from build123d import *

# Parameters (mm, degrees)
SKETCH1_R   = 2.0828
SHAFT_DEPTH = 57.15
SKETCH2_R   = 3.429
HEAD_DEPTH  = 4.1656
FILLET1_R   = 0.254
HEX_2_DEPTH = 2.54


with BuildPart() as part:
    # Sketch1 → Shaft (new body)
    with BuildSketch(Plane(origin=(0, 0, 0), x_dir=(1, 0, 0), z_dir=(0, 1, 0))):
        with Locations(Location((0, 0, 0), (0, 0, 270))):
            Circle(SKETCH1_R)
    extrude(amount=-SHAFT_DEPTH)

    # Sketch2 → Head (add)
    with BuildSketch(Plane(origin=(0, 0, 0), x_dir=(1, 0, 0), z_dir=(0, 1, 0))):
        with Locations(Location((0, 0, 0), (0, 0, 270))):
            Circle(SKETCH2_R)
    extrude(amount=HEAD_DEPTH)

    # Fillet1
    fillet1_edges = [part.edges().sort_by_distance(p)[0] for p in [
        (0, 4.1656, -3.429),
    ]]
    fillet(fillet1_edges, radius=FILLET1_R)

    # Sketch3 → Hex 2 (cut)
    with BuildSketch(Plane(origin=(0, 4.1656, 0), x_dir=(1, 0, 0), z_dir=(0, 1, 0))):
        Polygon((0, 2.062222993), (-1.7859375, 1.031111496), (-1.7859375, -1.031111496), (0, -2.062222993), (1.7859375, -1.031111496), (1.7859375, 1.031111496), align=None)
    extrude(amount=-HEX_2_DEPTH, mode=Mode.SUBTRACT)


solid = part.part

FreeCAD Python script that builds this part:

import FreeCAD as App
import Part
import Sketcher
Q = App.Units.Quantity


def edges_at(feature, points):
    """Names of the edges that pass closest to the given points."""
    edges = feature.Shape.Edges
    near = lambda p: min(range(len(edges)), key=lambda i: edges[i].distToShape(Part.Vertex(*p))[0])
    return sorted({f"Edge{near(p) + 1}" for p in points})


def add_polygon(sketch, points):
    """Adds a closed chain of lines whose ends are joined by coincident constraints."""
    first, n = sketch.GeometryCount, len(points)
    for a, b in zip(points, points[1:] + points[:1]):
        sketch.addGeometry(Part.LineSegment(App.Vector(*a, 0), App.Vector(*b, 0)), False)
    for i in range(n):
        sketch.addConstraint(Sketcher.Constraint("Coincident", first + i, 2, first + (i + 1) % n, 1))

doc = App.newDocument("Part")
body = doc.addObject("PartDesign::Body", "Body")

sketch1 = doc.addObject("Sketcher::SketchObject", "Sketch")
body.addObject(sketch1)
sketch1.AttachmentSupport = (doc.XZ_Plane, [""])
sketch1.MapMode = "FlatFace"
sketch1.addGeometry(Part.Circle(App.Vector(0, 0, 0), App.Vector(0, 0, 1), 2.1), False)
sketch1.addConstraint([
    Sketcher.Constraint("Coincident", 0, 3, -1, 1),
    Sketcher.Constraint("Diameter", 0, Q("0.164 in")),
])
pad1 = doc.addObject("PartDesign::Pad", "Pad")
body.addObject(pad1)
pad1.Profile = sketch1
pad1.Length = Q("2.25 in")

sketch2 = doc.addObject("Sketcher::SketchObject", "Sketch001")
body.addObject(sketch2)
sketch2.AttachmentSupport = (doc.XZ_Plane, [""])
sketch2.MapMode = "FlatFace"
sketch2.addGeometry(Part.Circle(App.Vector(0, 0, 0), App.Vector(0, 0, 1), 3.4), False)
sketch2.addConstraint([
    Sketcher.Constraint("Coincident", 0, 3, -1, 1),
    Sketcher.Constraint("Diameter", 0, Q("0.27 in")),
])
pad2 = doc.addObject("PartDesign::Pad", "Pad001")
body.addObject(pad2)
pad2.Profile = sketch2
pad2.Length = Q("0.164 in")
pad2.Reversed = True
doc.recompute()

fillet = doc.addObject("PartDesign::Fillet", "Fillet")
body.addObject(fillet)
fillet.Base = (pad2, edges_at(pad2, [(0, 4.166, -3.429)]))
fillet.Radius = Q("0.01 in")

sketch3 = doc.addObject("Sketcher::SketchObject", "Sketch002")
body.addObject(sketch3)
sketch3.AttachmentSupport = (doc.XZ_Plane, [""])
sketch3.MapMode = "FlatFace"
sketch3.AttachmentOffset = App.Placement(App.Vector(0, 0, -0.164 * 25.4), App.Rotation())
add_polygon(sketch3, [(0, -2.1), (-1.8, -1), (-1.8, 1), (0, 2.1), (1.8, 1), (1.8, -1)])
sketch3.addConstraint([
    Sketcher.Constraint("Vertical", 1),
    Sketcher.Constraint("Vertical", 4),
    Sketcher.Constraint("Symmetric", 0, 2, 3, 2, -1, 1),
    Sketcher.Constraint("Symmetric", 2, 2, 5, 2, -1, 1),
    Sketcher.Constraint("PointOnObject", 2, 2, -2),
    Sketcher.Constraint("Parallel", 2, 5),
    Sketcher.Constraint("Horizontal", 1, 2, 3, 2),
    Sketcher.Constraint("Angle", 0, Q("150 deg")),
    Sketcher.Constraint("DistanceX", 1, 2, 3, 2, Q("0.140625 in")),
    Sketcher.Constraint("DistanceY", 1, 1, 1, 2, 2.062223),
])
pocket1 = doc.addObject("PartDesign::Pocket", "Pocket")
body.addObject(pocket1)
pocket1.Profile = sketch3
pocket1.Length = Q("0.1 in")
pocket1.Reversed = True

doc.recompute()
